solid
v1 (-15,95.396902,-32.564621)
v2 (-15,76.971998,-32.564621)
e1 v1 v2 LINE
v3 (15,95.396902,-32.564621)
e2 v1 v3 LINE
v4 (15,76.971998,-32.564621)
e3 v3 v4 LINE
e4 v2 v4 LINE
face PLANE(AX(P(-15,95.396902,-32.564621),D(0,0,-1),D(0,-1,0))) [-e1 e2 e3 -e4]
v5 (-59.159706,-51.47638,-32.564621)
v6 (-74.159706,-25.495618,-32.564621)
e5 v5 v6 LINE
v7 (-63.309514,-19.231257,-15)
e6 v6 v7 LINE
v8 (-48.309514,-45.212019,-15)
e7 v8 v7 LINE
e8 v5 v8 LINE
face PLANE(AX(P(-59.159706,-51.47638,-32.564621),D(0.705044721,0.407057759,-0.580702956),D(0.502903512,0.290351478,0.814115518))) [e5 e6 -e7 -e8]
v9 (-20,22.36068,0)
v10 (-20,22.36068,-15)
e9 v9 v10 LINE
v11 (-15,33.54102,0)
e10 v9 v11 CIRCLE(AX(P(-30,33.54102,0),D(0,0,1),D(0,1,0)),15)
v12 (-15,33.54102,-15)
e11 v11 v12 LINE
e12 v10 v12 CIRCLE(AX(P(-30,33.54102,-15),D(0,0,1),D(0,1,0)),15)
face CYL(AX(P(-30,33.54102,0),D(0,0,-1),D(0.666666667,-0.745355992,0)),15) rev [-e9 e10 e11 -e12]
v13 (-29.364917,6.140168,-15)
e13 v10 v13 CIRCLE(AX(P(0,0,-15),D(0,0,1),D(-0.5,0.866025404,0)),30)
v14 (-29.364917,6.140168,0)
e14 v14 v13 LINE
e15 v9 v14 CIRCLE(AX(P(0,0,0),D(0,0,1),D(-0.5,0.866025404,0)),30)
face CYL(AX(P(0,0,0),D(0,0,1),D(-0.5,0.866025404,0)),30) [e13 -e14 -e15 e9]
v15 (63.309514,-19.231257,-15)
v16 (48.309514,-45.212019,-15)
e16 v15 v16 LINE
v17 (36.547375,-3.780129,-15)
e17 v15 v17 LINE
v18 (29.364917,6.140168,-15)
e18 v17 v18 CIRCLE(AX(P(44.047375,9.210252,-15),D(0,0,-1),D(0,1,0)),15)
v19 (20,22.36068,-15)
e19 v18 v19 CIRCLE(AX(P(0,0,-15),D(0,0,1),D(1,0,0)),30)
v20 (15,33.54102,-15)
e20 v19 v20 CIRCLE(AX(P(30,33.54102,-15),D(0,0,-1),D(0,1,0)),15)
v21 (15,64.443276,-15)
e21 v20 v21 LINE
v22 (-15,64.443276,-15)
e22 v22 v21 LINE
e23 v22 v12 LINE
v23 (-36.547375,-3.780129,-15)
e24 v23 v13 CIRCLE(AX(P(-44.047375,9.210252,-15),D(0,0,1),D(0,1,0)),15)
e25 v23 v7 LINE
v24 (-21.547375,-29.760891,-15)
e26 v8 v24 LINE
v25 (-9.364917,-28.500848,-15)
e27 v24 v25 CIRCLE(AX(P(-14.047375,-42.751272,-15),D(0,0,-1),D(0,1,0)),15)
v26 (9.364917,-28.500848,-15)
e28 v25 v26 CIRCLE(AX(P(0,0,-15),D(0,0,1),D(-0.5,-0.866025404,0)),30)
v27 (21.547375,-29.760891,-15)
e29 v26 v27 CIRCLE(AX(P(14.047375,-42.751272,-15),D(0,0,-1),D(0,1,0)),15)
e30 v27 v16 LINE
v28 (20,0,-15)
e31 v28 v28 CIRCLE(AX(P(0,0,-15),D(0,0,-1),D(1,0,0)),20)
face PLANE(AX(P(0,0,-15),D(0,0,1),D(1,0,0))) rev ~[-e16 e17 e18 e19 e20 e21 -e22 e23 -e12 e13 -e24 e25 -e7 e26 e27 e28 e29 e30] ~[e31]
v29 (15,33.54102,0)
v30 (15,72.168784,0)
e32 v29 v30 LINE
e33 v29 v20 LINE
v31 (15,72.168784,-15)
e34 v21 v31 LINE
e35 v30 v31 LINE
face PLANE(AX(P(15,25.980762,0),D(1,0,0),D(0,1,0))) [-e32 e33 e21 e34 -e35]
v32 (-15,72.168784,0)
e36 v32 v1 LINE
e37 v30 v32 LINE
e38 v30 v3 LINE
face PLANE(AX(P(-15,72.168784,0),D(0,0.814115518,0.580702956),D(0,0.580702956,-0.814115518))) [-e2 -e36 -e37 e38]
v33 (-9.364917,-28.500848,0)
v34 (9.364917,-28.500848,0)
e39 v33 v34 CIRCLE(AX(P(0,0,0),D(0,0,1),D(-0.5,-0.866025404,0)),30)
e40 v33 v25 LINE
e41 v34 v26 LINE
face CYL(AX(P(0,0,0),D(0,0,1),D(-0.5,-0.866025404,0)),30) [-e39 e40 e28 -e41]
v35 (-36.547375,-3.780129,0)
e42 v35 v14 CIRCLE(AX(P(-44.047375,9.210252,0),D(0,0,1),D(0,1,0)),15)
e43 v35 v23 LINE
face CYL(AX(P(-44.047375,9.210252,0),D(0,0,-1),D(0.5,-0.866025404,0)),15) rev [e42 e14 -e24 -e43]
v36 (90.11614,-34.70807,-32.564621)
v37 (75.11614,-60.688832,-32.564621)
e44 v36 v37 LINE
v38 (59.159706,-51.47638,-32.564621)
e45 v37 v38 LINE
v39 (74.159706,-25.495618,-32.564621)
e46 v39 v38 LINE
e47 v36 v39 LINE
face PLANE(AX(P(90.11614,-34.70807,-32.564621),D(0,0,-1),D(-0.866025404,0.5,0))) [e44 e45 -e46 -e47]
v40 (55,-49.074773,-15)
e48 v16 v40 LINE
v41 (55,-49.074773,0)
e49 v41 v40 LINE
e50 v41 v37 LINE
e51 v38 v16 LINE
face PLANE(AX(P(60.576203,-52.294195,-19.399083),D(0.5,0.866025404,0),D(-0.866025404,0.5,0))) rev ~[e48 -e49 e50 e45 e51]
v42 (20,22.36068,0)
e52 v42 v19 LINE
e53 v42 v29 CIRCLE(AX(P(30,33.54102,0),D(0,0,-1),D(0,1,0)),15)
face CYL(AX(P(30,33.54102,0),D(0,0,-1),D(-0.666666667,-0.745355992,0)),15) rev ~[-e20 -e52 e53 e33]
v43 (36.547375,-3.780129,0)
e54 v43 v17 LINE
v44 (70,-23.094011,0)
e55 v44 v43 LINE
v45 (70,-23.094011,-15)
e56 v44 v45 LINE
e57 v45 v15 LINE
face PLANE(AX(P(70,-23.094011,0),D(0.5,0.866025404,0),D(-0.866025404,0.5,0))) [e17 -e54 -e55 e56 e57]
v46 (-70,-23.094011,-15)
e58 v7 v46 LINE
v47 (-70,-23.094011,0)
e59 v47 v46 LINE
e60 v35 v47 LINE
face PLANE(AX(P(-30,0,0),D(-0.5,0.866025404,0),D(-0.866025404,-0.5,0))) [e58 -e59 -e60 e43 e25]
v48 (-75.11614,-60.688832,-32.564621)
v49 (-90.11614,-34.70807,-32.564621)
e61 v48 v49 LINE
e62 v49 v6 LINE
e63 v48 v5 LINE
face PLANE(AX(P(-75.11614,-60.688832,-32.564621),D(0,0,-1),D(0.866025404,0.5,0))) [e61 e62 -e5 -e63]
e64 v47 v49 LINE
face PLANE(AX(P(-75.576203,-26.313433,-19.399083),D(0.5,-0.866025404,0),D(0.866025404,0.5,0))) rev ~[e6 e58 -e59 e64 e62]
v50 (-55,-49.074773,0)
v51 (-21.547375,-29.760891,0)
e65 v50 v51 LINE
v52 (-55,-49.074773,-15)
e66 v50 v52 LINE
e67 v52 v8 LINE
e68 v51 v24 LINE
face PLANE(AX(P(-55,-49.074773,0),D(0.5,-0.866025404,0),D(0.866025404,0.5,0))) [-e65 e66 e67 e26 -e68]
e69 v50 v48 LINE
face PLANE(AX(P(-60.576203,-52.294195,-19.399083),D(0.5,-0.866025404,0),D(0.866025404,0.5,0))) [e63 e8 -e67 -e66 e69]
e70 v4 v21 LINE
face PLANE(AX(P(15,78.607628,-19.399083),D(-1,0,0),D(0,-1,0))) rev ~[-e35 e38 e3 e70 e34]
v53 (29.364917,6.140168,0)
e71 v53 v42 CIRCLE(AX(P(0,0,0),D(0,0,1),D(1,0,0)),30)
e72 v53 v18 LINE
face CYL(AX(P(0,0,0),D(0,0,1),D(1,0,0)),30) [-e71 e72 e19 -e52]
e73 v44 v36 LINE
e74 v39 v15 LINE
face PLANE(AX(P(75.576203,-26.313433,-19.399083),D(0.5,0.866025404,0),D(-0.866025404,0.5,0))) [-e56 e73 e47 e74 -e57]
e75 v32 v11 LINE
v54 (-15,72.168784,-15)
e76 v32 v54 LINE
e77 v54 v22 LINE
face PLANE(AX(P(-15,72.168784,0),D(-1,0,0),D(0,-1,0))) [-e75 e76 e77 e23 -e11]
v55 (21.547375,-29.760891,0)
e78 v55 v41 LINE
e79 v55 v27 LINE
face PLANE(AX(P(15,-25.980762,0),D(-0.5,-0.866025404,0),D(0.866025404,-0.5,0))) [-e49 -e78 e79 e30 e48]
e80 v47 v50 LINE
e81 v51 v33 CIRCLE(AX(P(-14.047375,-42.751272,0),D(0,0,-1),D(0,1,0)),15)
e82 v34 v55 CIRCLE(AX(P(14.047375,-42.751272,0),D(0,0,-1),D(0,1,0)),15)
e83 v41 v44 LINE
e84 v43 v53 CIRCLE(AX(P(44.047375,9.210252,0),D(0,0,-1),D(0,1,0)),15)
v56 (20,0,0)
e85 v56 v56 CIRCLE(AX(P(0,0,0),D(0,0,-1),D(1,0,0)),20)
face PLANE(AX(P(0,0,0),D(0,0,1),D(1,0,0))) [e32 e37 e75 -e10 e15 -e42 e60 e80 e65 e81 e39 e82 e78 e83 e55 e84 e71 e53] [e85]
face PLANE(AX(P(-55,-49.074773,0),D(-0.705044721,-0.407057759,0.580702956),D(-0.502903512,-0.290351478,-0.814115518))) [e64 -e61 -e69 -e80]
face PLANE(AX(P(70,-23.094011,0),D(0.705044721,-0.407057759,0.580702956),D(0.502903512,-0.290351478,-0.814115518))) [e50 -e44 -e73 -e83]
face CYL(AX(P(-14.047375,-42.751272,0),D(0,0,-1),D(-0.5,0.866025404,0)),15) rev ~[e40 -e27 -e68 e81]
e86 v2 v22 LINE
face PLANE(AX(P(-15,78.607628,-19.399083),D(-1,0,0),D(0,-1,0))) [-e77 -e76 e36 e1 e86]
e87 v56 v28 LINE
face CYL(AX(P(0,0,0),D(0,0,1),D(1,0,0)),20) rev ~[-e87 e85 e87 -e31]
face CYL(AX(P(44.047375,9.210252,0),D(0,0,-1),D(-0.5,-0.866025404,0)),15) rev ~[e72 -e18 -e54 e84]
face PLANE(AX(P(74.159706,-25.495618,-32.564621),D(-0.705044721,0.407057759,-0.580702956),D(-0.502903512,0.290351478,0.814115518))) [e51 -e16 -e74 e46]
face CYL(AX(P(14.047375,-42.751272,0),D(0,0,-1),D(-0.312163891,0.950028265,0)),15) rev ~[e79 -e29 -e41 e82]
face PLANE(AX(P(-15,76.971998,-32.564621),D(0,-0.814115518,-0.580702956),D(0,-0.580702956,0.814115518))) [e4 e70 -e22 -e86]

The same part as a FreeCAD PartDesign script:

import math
import FreeCAD as App
import Part
import Sketcher
from FreeCAD import Vector
Q = App.Units.Quantity


def edges_at(feature, points):
    """Names of the edges that pass closest to the given points."""
    edges = feature.Shape.Edges
    near = lambda p: min(range(len(edges)), key=lambda i: edges[i].distToShape(Part.Vertex(*p))[0])
    return sorted({f"Edge{near(p) + 1}" for p in points})

doc = App.newDocument("Part")
params = doc.addObject("Spreadsheet::Sheet", "Params")
for row, (alias, value) in enumerate([
    ("sketch1_diameter", "40 mm"),
    ("sketch1_radius", "30 mm"),
    ("sketch1_width", "30 mm"),
    ("pad1_length", "15 mm"),
    ("fillet_radius", "15 mm"),
    ("sketch2_height", "15 mm"),
    ("sketch2_length", "40 mm"),
    ("pad2_length", "30 mm"),
], start=1):
    params.set(f"A{row}", alias)
    params.set(f"B{row}", "=" + value)
    params.setAlias(f"B{row}", alias)

body = doc.addObject("PartDesign::Body", "Body")

sketch1 = body.newObject("Sketcher::SketchObject", "Sketch")
sketch1.AttachmentSupport = (doc.getObject("XY_Plane"), [""])
sketch1.MapMode = "FlatFace"
sketch1.addGeometry(Part.LineSegment(Vector(-55, -49.074773, 0), Vector(-15, -25.980762, 0)), False)
sketch1.addGeometry(Part.ArcOfCircle(Part.Circle(Vector(0, 0, 0), Vector(0, 0, 1), 30), math.radians(-120), math.radians(-60)), False)
sketch1.addGeometry(Part.LineSegment(Vector(15, -25.980762, 0), Vector(55, -49.074773, 0)), False)
sketch1.addGeometry(Part.LineSegment(Vector(55, -49.074773, 0), Vector(70, -23.094011, 0)), False)
sketch1.addGeometry(Part.LineSegment(Vector(70, -23.094011, 0), Vector(30, 0, 0)), False)
sketch1.addGeometry(Part.ArcOfCircle(Part.Circle(Vector(0, 0, 0), Vector(0, 0, 1), 30), math.radians(0), math.radians(60)), False)
sketch1.addGeometry(Part.LineSegment(Vector(15, 25.980762, 0), Vector(15, 72.168784, 0)), False)
sketch1.addGeometry(Part.LineSegment(Vector(15, 72.168784, 0), Vector(-15, 72.168784, 0)), False)
sketch1.addGeometry(Part.LineSegment(Vector(-15, 72.168784, 0), Vector(-15, 25.980762, 0)), False)
sketch1.addGeometry(Part.ArcOfCircle(Part.Circle(Vector(0, 0, 0), Vector(0, 0, 1), 30), math.radians(120), math.radians(180)), False)
sketch1.addGeometry(Part.LineSegment(Vector(-30, 0, 0), Vector(-70, -23.094011, 0)), False)
sketch1.addGeometry(Part.LineSegment(Vector(-70, -23.094011, 0), Vector(-55, -49.074773, 0)), False)
sketch1.addGeometry(Part.Circle(Vector(0, 0, 0), Vector(0, 0, 1), 20), False)
sketch1.addConstraint(Sketcher.Constraint("Coincident", 0, 2, 1, 1))
sketch1.addConstraint(Sketcher.Constraint("Coincident", 1, 2, 2, 1))
sketch1.addConstraint(Sketcher.Constraint("Coincident", 2, 2, 3, 1))
sketch1.addConstraint(Sketcher.Constraint("Coincident", 3, 2, 4, 1))
sketch1.addConstraint(Sketcher.Constraint("Coincident", 4, 2, 5, 1))
sketch1.addConstraint(Sketcher.Constraint("Coincident", 5, 2, 6, 1))
sketch1.addConstraint(Sketcher.Constraint("Coincident", 6, 2, 7, 1))
sketch1.addConstraint(Sketcher.Constraint("Coincident", 7, 2, 8, 1))
sketch1.addConstraint(Sketcher.Constraint("Coincident", 8, 2, 9, 1))
sketch1.addConstraint(Sketcher.Constraint("Coincident", 9, 2, 10, 1))
sketch1.addConstraint(Sketcher.Constraint("Coincident", 10, 2, 11, 1))
sketch1.addConstraint(Sketcher.Constraint("Coincident", 11, 2, 0, 1))
sketch1.addConstraint(Sketcher.Constraint("Vertical", 6))
sketch1.addConstraint(Sketcher.Constraint("Horizontal", 7))
sketch1.addConstraint(Sketcher.Constraint("Vertical", 8))
sketch1.addConstraint(Sketcher.Constraint("Coincident", 1, 3, -1, 1))
sketch1.addConstraint(Sketcher.Constraint("Coincident", 5, 3, -1, 1))
sketch1.addConstraint(Sketcher.Constraint("Coincident", 9, 3, -1, 1))
sketch1.addConstraint(Sketcher.Constraint("Coincident", 12, 3, -1, 1))
sketch1.addConstraint(Sketcher.Constraint("Equal", 1, 5))
sketch1.addConstraint(Sketcher.Constraint("Equal", 5, 9))
sketch1.addConstraint(Sketcher.Constraint("Symmetric", 3, 2, 10, 2, -2))
sketch1.addConstraint(Sketcher.Constraint("Symmetric", 2, 2, 11, 2, -2))
sketch1.addConstraint(Sketcher.Constraint("PointOnObject", 4, 2, -1))
sketch1.addConstraint(Sketcher.Constraint("PointOnObject", 9, 2, -1))
sketch1.addConstraint(Sketcher.Constraint("Perpendicular", 2, 3))
sketch1.addConstraint(Sketcher.Constraint("Perpendicular", 3, 4))
sketch1.addConstraint(Sketcher.Constraint("Parallel", 0, 10))
sketch1.addConstraint(Sketcher.Constraint("Horizontal", 5, 2, 8, 2))
sketch1.addConstraint(Sketcher.Constraint("Vertical", 1, 2, 5, 2))
sketch1.addConstraint(Sketcher.Constraint("Equal", 2, 4))
sketch1.addConstraint(Sketcher.Constraint("Diameter", 12, Q("40 mm")))
sketch1.addConstraint(Sketcher.Constraint("Radius", 1, Q("30 mm")))
sketch1.addConstraint(Sketcher.Constraint("DistanceX", 7, 2, 7, 1, Q("30 mm")))
sketch1.addConstraint(Sketcher.Constraint("DistanceX", -1, 1, 2, 2, Q("55 mm")))
sketch1.addConstraint(Sketcher.Constraint("DistanceY", 6, 1, 6, 2, Q("46.188022 mm")))
sketch1.setExpression("Constraints[31]", "Params.sketch1_diameter")
sketch1.setExpression("Constraints[32]", "Params.sketch1_radius")
sketch1.setExpression("Constraints[33]", "Params.sketch1_width")
pad1 = body.newObject("PartDesign::Pad", "Pad")
pad1.Profile = sketch1
pad1.setExpression("Length", "Params.pad1_length")
pad1.Reversed = True
doc.recompute()

fillet = body.newObject("PartDesign::Fillet", "Fillet")
fillet.Base = (pad1, edges_at(pad1, [
    (-15, 25.981, -7.5),
    (-30, 0, -7.5),
    (-15, -25.981, -7.5),
    (15, -25.981, -7.5),
    (15, 25.981, -7.5),
    (30, 0, -7.5),
]))
fillet.setExpression("Radius", "Params.fillet_radius")

sketch2 = body.newObject("Sketcher::SketchObject", "Sketch001")
sketch2.Placement = App.Placement(Vector(7.5, -12.990381, 0), App.Rotation(Vector(0.866025404, 0.5, 0), Vector(0, 0, 1), Vector(0.5, -0.866025404, 0), "ZXY"))
sketch2.addGeometry(Part.LineSegment(Vector(-72.168784, -15, 0), Vector(-72.168784, 0, 0)), False)
sketch2.addGeometry(Part.LineSegment(Vector(-72.168784, 0, 0), Vector(-95.396902, -32.564621, 0)), False)
sketch2.addGeometry(Part.LineSegment(Vector(-95.396902, -32.564621, 0), Vector(-76.971998, -32.564621, 0)), False)
sketch2.addGeometry(Part.LineSegment(Vector(-76.971998, -32.564621, 0), Vector(-64.443276, -15, 0)), False)
sketch2.addGeometry(Part.LineSegment(Vector(-64.443276, -15, 0), Vector(-72.168784, -15, 0)), False)
sketch2.addConstraint(Sketcher.Constraint("Coincident", 0, 2, 1, 1))
sketch2.addConstraint(Sketcher.Constraint("Coincident", 1, 2, 2, 1))
sketch2.addConstraint(Sketcher.Constraint("Coincident", 2, 2, 3, 1))
sketch2.addConstraint(Sketcher.Constraint("Coincident", 3, 2, 4, 1))
sketch2.addConstraint(Sketcher.Constraint("Coincident", 4, 2, 0, 1))
sketch2.addConstraint(Sketcher.Constraint("Vertical", 0))
sketch2.addConstraint(Sketcher.Constraint("Horizontal", 2))
sketch2.addConstraint(Sketcher.Constraint("Horizontal", 4))
sketch2.addConstraint(Sketcher.Constraint("PointOnObject", 0, 2, -1))
sketch2.addConstraint(Sketcher.Constraint("Parallel", 1, 3))
sketch2.addConstraint(Sketcher.Constraint("DistanceY", 0, 1, 0, 2, Q("15 mm")))
sketch2.addConstraint(Sketcher.Constraint("Distance", 1, Q("40 mm")))
sketch2.addConstraint(Sketcher.Constraint("Angle", 1, Q("-125.5 deg")))
sketch2.addConstraint(Sketcher.Constraint("DistanceX", 2, 2, -1, 1, Q("76.971998 mm")))
sketch2.addConstraint(Sketcher.Constraint("DistanceX", 1, 2, -1, 1, Q("95.396902 mm")))
sketch2.setExpression("Constraints[10]", "Params.sketch2_height")
sketch2.setExpression("Constraints[11]", "Params.sketch2_length")
pad2 = body.newObject("PartDesign::Pad", "Pad001")
pad2.Profile = sketch2
pad2.setExpression("Length", "Params.pad2_length")
pad2.Reversed = True
body2 = doc.addObject("PartDesign::Body", "Body001")
doc.recompute()

body2.BaseFeature = body
doc.recompute()

body3 = doc.addObject("PartDesign::Body", "Body002")
body3.BaseFeature = body
body3.Placement = App.Placement(Vector(0, 0, 0), App.Rotation(Vector(0, 0, -1), 120))
boolean = body2.newObject("PartDesign::Boolean", "Boolean")
boolean.Type = "Fuse"
boolean.addObjects([body3])
doc.recompute()

body.Placement = App.Placement(Vector(0, 0, 0), App.Rotation(Vector(0, 0, -1), 240))
boolean2 = body2.newObject("PartDesign::Boolean", "Boolean001")
boolean2.Type = "Fuse"
boolean2.addObjects([body])

doc.recompute()
